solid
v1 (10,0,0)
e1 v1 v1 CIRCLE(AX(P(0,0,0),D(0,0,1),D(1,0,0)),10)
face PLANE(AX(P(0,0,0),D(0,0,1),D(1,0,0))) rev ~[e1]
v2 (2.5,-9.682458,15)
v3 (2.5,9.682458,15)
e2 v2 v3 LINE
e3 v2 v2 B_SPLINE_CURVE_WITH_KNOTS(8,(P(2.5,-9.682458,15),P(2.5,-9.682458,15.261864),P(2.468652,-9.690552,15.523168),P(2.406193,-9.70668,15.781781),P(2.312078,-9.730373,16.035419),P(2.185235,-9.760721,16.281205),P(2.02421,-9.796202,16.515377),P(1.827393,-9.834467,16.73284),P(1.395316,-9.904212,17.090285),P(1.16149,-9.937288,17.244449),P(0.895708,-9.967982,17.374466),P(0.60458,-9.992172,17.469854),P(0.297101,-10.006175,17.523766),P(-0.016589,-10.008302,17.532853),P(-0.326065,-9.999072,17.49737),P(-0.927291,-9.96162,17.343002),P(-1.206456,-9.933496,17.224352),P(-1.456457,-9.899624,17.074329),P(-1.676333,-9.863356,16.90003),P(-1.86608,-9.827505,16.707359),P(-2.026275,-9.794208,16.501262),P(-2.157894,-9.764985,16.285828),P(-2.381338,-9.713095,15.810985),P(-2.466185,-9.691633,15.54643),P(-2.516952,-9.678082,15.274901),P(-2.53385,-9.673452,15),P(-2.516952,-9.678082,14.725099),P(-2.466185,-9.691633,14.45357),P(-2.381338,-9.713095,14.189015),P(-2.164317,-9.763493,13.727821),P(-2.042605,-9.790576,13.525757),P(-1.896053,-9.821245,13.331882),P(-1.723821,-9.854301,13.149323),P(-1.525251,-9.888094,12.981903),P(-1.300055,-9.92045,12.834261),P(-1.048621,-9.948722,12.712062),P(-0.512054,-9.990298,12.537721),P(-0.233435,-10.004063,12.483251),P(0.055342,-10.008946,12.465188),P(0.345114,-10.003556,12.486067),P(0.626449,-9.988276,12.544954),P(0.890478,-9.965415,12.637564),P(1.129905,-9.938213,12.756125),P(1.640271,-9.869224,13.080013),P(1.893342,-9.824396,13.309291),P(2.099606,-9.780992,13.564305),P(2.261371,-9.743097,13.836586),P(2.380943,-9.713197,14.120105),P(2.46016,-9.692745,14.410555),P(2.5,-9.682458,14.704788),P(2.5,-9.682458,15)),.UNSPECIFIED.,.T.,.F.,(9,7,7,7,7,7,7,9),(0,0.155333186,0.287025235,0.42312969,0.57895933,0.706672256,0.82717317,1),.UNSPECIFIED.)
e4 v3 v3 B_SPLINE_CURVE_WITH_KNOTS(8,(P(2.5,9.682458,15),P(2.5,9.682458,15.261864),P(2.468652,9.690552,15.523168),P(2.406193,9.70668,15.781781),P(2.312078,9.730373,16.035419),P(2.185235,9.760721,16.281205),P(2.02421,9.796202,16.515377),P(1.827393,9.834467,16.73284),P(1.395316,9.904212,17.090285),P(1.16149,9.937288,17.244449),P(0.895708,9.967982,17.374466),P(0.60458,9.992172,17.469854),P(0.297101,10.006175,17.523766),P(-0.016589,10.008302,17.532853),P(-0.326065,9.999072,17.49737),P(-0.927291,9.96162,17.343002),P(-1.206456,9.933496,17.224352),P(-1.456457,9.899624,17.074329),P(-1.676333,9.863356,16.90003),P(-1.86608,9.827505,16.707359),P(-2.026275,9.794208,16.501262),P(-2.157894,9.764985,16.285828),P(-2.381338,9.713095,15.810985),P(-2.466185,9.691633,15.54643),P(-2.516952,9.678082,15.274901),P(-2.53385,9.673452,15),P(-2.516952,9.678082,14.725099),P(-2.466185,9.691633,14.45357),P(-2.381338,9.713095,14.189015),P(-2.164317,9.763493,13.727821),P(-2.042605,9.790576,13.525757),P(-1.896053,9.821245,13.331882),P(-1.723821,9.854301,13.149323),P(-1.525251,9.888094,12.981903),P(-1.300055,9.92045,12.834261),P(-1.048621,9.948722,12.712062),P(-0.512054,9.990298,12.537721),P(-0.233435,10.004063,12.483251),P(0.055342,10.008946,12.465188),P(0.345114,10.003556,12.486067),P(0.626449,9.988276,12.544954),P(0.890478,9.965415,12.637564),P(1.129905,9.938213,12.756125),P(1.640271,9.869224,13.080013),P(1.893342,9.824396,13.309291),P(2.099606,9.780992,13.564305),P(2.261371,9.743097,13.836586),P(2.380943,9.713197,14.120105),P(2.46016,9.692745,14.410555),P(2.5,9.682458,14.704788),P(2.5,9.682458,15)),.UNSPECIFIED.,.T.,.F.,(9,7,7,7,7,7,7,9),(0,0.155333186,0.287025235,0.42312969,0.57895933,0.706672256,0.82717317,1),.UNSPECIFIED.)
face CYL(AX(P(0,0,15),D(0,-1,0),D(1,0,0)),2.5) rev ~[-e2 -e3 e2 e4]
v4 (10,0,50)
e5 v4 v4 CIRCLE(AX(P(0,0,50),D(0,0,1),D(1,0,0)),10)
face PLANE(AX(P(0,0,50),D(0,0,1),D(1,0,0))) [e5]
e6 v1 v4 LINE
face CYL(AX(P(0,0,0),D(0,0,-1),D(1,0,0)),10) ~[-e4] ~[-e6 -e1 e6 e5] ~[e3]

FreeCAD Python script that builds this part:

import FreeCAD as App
import Part
import Sketcher
Q = App.Units.Quantity

doc = App.newDocument("Part")
body = doc.addObject("PartDesign::Body", "Body")

# Sketch on XY plane
sketch1 = body.newObject("Sketcher::SketchObject", "Sketch")
sketch1.AttachmentSupport = (doc.getObject("XY_Plane"), [""])
sketch1.MapMode = "FlatFace"
sketch1.addGeometry(Part.Circle(App.Vector(0, 0, 0), App.Vector(0, 0, 1), 10), False)
sketch1.addConstraint([
    Sketcher.Constraint("Coincident", 0, 3, -1, 1),
    Sketcher.Constraint("Diameter", 0, Q("20 mm")),
])
pad1 = body.newObject("PartDesign::Pad", "Pad")
pad1.Profile = sketch1
pad1.Length = 50

# Sketch on XZ plane
sketch2 = body.newObject("Sketcher::SketchObject", "Sketch001")
sketch2.AttachmentSupport = (doc.getObject("XZ_Plane"), [""])
sketch2.MapMode = "FlatFace"
sketch2.addGeometry(Part.Circle(App.Vector(0, 15, 0), App.Vector(0, 0, 1), 2.5), False)
sketch2.addConstraint([
    Sketcher.Constraint("PointOnObject", 0, 3, -2),
    Sketcher.Constraint("Diameter", 0, Q("5 mm")),
    Sketcher.Constraint("DistanceY", -1, 1, 0, 3, Q("15 mm")),
])
pocket1 = body.newObject("PartDesign::Pocket", "Pocket")
pocket1.Profile = sketch2
pocket1.Type = "ThroughAll"
pocket1.Midplane = True

doc.recompute()
